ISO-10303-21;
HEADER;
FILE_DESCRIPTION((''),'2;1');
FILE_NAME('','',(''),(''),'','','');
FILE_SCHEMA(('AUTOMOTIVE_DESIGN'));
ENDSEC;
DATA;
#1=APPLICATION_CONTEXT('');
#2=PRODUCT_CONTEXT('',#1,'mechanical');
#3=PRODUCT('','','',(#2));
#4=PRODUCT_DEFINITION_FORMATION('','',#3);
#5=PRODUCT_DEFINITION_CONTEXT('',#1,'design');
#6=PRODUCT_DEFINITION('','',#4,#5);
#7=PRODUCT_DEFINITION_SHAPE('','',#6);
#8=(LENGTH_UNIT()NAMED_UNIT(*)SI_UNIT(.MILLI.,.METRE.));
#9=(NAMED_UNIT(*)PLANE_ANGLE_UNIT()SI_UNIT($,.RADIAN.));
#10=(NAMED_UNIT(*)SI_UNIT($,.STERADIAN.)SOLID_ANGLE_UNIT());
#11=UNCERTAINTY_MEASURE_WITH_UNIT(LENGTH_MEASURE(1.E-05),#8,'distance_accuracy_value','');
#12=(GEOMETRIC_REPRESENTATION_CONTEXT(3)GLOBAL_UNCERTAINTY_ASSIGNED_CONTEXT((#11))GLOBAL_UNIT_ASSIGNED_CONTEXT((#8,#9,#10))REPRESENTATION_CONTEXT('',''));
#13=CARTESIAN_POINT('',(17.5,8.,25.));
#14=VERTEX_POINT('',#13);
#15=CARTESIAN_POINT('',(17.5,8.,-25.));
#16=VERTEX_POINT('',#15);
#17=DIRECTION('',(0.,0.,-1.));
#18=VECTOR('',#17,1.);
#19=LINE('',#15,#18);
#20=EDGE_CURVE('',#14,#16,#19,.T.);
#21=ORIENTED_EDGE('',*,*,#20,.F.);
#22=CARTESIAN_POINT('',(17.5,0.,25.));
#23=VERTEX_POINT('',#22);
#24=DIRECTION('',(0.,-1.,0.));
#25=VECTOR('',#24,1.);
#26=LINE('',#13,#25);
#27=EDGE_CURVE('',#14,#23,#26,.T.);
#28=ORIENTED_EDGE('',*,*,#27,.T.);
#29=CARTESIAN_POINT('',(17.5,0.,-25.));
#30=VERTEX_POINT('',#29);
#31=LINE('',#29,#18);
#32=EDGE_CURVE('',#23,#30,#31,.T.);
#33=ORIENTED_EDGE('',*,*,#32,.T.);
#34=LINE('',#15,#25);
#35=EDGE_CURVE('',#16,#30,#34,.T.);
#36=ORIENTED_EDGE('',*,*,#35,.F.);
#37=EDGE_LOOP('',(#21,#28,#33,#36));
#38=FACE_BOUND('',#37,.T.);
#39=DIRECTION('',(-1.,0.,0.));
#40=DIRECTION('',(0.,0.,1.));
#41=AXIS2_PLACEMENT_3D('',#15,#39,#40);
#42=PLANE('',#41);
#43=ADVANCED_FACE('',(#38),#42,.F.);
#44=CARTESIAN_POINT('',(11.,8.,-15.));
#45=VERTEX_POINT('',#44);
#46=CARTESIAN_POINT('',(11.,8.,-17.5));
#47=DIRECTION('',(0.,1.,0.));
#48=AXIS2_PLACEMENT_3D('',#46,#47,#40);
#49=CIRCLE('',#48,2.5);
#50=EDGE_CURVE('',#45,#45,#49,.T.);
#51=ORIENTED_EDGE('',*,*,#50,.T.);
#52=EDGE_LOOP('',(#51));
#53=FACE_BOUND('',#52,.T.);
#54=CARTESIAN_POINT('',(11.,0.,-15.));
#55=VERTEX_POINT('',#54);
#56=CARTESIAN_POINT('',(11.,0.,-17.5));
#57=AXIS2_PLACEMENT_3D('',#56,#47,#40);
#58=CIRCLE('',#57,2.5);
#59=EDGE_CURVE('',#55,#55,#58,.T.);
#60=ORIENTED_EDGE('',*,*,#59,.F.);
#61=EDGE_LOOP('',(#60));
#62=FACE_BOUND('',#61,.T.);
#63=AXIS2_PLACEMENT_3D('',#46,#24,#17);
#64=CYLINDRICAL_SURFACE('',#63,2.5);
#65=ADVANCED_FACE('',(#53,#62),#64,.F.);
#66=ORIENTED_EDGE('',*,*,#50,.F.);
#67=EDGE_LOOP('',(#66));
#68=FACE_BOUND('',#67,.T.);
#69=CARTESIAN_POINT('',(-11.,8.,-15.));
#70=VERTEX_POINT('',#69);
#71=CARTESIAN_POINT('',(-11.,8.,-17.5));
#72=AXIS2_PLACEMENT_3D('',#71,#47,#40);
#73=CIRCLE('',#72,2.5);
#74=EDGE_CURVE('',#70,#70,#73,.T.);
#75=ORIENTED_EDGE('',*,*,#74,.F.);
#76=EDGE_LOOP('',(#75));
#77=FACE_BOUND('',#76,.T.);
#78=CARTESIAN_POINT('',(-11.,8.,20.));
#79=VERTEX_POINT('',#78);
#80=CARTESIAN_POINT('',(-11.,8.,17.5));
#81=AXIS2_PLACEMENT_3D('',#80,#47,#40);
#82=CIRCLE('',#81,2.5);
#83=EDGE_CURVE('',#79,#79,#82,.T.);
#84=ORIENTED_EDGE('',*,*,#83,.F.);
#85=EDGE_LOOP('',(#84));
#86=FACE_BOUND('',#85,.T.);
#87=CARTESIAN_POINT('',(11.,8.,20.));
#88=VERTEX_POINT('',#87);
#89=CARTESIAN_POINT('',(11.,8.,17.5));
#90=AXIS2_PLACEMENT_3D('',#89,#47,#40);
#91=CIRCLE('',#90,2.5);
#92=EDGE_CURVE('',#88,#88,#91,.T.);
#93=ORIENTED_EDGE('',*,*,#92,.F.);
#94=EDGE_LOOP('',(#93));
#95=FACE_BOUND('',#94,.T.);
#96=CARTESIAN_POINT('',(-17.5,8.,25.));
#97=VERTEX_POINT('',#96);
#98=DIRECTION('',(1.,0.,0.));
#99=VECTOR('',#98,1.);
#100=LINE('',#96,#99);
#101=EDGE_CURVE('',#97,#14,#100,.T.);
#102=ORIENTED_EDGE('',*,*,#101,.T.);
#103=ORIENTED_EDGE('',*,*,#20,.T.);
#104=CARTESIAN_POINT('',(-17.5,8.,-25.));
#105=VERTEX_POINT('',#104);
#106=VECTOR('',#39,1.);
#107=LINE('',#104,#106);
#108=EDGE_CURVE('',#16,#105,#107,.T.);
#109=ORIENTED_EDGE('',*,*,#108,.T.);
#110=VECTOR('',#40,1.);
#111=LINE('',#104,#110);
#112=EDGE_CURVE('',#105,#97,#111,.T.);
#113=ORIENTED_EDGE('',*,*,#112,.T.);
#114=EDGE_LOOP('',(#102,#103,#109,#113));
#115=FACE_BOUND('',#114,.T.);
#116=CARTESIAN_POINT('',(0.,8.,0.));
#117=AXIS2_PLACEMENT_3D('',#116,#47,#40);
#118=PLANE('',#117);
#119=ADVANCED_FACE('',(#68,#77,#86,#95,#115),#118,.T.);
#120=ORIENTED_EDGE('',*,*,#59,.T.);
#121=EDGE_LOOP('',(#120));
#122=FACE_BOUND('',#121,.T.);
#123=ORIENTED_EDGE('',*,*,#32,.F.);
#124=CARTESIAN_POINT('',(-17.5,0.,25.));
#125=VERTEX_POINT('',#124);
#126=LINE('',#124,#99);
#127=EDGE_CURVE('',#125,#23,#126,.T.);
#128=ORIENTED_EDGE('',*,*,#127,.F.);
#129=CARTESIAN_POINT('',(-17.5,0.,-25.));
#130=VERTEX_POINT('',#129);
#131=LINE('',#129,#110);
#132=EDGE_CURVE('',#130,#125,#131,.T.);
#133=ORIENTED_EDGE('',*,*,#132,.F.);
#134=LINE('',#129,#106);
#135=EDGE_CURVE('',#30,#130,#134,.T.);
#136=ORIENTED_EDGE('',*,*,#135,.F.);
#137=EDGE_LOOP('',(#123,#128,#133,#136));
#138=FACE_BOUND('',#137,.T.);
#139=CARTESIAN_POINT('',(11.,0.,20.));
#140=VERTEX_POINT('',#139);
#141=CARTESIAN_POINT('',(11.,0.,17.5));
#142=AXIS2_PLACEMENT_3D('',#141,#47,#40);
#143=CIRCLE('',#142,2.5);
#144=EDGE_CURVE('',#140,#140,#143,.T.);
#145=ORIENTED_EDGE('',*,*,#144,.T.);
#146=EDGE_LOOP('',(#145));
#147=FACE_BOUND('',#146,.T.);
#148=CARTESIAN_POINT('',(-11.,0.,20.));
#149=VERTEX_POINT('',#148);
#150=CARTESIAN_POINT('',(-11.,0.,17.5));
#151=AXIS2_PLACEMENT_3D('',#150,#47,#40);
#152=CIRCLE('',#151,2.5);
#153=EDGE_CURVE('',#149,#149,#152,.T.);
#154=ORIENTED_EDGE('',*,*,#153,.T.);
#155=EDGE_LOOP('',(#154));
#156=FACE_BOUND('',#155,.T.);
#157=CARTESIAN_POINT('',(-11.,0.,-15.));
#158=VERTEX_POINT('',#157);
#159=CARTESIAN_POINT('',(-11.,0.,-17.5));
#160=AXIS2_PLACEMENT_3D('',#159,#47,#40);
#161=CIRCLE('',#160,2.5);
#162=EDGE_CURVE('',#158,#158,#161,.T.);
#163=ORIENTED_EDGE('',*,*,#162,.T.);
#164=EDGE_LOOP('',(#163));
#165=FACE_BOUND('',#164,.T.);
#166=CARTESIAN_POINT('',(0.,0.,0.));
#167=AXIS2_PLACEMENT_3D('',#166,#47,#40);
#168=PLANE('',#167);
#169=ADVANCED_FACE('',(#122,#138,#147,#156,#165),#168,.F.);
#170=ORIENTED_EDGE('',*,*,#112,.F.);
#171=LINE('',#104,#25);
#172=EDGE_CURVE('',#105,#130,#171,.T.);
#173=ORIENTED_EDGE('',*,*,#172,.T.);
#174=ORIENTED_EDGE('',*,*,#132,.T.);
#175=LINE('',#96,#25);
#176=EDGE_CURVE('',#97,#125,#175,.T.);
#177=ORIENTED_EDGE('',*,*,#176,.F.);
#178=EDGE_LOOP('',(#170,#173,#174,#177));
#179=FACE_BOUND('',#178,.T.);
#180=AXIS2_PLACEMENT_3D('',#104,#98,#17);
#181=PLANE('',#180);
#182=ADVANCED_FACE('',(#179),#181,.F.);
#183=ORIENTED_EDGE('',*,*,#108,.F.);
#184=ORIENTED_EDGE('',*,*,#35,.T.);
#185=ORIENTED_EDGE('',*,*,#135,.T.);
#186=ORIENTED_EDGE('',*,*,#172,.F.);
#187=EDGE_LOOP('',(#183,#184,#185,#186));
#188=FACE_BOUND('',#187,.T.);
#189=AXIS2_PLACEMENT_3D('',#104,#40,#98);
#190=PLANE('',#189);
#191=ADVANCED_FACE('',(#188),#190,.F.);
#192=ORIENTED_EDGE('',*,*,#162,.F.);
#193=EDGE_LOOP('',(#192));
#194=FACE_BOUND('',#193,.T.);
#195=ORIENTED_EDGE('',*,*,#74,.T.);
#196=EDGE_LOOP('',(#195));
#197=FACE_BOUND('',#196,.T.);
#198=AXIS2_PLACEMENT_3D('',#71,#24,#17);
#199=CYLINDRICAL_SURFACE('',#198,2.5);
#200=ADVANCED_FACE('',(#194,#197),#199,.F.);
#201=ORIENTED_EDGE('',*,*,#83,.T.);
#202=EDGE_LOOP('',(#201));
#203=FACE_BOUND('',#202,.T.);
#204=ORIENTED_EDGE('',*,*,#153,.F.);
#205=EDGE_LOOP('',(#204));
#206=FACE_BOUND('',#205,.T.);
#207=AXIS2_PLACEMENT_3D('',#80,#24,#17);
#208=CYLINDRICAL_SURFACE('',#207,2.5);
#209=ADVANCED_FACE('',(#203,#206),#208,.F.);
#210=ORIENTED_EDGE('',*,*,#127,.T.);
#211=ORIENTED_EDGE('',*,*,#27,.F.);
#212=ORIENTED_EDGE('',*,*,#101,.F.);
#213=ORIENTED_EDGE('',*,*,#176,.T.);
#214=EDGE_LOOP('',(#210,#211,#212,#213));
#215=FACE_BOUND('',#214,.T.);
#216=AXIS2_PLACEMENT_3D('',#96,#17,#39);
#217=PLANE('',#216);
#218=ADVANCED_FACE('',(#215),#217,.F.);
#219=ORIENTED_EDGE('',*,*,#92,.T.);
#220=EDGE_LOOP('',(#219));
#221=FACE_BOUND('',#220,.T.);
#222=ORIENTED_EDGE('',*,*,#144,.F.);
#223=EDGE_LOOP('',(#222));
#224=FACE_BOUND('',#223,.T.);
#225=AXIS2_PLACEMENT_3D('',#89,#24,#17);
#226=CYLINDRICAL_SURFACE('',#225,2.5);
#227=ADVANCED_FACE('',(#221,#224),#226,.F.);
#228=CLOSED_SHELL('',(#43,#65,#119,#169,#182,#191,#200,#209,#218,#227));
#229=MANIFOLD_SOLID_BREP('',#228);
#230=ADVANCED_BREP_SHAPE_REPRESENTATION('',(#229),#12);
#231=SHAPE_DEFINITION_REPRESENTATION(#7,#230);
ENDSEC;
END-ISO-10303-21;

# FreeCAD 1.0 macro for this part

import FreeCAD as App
import Part
import Sketcher

V = App.Vector
Q = App.Units.Quantity


def add_polygon(sketch, points):
    """Adds a closed chain of lines whose ends are joined by coincident constraints."""
    first, n = sketch.GeometryCount, len(points)
    for a, b in zip(points, points[1:] + points[:1]):
        sketch.addGeometry(Part.LineSegment(App.Vector(*a, 0), App.Vector(*b, 0)), False)
    for i in range(n):
        sketch.addConstraint(Sketcher.Constraint("Coincident", first + i, 2, first + (i + 1) % n, 1))

doc = App.newDocument("Part")
body = doc.addObject("PartDesign::Body", "Body")

# Sketch on XZ plane
sketch1 = body.newObject("Sketcher::SketchObject", "Sketch")
sketch1.AttachmentSupport = (doc.getObject("XZ_Plane"), [""])
sketch1.MapMode = "FlatFace"
add_polygon(sketch1, [(-17.5, -25), (-17.5, 25), (17.5, 25), (17.5, -25)])  # lines 0-3
sketch1.addGeometry(Part.Circle(V(-11, 17.5, 0), V(0, 0, 1), 2.5), False)  # 4
sketch1.addGeometry(Part.Circle(V(11, 17.5, 0), V(0, 0, 1), 2.5), False)  # 5
sketch1.addGeometry(Part.Circle(V(-11, -17.5, 0), V(0, 0, 1), 2.5), False)  # 6
sketch1.addGeometry(Part.Circle(V(11, -17.5, 0), V(0, 0, 1), 2.5), False)  # 7
sketch1.addConstraint([
    Sketcher.Constraint("Vertical", 0),
    Sketcher.Constraint("Horizontal", 1),
    Sketcher.Constraint("Vertical", 2),
    Sketcher.Constraint("Horizontal", 3),
    Sketcher.Constraint("Equal", 4, 5),
    Sketcher.Constraint("Equal", 5, 6),
    Sketcher.Constraint("Equal", 6, 7),
    Sketcher.Constraint("Symmetric", 5, 3, 6, 3, -1, 1),
    Sketcher.Constraint("Symmetric", 4, 3, 7, 3, -1, 1),
    Sketcher.Constraint("Symmetric", 0, 2, 2, 2, -1, 1),
    Sketcher.Constraint("Symmetric", 4, 3, 5, 3, -2),
    Sketcher.Constraint("Diameter", 4, Q("5 mm")),
    Sketcher.Constraint("DistanceX", 1, 1, 1, 2, Q("35 mm")),
    Sketcher.Constraint("DistanceY", 0, 1, 0, 2, Q("50 mm")),
    Sketcher.Constraint("DistanceX", 4, 3, -1, 1, Q("11 mm")),
    Sketcher.Constraint("DistanceY", 6, 3, 4, 3, Q("35 mm")),
])
pad1 = body.newObject("PartDesign::Pad", "Pad")
pad1.Profile = sketch1
pad1.Length = 8
pad1.Reversed = True

doc.recompute()
